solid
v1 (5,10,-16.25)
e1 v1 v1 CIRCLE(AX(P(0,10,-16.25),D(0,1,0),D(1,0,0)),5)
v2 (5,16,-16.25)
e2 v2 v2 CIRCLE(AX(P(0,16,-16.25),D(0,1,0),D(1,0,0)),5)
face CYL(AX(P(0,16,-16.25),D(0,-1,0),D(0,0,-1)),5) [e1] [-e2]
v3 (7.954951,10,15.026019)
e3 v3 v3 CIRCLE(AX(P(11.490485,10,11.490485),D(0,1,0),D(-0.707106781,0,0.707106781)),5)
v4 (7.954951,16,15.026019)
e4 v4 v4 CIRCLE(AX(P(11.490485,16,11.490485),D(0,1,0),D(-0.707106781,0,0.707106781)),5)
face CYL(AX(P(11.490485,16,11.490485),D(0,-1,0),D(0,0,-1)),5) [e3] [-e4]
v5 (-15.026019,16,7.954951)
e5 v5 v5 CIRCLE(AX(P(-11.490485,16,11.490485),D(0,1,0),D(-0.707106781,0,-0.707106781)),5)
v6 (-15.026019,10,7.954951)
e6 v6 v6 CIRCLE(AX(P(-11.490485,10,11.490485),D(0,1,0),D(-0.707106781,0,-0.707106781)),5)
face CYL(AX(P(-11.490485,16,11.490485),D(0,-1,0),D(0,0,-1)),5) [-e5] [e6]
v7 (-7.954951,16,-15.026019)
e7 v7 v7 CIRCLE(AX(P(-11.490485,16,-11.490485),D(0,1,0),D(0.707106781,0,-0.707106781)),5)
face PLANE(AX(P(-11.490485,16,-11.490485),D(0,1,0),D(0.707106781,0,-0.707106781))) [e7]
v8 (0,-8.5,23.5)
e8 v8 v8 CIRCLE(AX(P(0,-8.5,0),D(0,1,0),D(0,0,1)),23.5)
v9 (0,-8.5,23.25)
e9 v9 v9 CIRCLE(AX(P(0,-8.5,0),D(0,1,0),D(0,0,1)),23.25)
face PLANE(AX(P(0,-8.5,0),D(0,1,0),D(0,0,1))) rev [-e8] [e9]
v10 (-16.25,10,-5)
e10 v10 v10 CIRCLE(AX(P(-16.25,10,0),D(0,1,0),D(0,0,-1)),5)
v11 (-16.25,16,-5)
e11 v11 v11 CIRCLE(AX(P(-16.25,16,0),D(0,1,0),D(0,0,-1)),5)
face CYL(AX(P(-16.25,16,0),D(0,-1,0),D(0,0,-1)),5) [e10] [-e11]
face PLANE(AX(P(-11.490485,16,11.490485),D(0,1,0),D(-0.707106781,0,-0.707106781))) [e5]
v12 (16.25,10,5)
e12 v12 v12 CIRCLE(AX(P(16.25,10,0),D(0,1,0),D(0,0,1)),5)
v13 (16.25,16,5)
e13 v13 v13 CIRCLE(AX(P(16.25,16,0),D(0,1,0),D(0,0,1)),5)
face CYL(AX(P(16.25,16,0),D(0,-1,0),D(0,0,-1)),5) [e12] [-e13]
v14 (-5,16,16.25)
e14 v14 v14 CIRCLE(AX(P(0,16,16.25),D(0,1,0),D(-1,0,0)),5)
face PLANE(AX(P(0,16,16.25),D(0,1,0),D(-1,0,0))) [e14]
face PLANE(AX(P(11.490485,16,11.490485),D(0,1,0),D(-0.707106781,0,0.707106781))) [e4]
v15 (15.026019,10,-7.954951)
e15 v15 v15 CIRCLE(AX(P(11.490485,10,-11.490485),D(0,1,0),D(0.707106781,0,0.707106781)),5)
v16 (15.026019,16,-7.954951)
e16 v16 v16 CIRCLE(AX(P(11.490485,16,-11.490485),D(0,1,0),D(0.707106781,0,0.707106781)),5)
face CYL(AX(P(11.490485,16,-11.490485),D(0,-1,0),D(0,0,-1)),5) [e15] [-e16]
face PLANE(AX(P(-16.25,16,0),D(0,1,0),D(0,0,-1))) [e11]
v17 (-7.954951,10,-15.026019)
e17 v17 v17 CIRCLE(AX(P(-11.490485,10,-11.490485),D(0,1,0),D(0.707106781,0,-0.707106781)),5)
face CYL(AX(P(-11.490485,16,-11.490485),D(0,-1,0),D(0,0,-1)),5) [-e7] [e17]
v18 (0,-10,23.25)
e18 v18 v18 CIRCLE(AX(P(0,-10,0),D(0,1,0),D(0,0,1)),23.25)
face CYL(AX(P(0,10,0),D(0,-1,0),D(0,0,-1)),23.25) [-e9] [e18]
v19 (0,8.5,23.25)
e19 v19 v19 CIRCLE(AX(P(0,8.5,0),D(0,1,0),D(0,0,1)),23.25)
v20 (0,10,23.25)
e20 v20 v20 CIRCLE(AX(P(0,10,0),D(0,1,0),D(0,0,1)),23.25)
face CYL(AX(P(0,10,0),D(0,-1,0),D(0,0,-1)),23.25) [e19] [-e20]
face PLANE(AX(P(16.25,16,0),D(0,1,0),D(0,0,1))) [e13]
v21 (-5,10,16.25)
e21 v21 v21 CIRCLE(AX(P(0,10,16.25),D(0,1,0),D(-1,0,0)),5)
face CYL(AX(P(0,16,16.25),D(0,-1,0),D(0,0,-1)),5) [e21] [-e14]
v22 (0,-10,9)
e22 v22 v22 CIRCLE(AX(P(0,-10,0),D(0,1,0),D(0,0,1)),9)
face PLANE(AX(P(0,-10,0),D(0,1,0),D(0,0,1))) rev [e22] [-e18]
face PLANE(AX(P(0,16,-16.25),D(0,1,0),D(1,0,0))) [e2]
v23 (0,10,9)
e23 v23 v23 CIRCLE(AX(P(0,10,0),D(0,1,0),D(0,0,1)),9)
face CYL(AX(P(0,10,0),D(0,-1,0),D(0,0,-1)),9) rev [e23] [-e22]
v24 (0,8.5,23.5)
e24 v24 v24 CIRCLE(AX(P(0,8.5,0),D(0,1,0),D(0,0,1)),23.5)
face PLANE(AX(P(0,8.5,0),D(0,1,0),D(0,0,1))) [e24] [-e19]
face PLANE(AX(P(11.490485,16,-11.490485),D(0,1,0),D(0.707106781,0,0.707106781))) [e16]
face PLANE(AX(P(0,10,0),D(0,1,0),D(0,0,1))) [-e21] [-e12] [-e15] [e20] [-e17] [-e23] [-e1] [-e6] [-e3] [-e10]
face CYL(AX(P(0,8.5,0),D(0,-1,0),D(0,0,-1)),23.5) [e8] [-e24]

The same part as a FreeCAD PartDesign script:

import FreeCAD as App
import Part
import Sketcher
from FreeCAD import Vector

doc = App.newDocument("Part")
params = doc.addObject("Spreadsheet::Sheet", "Params")
for row, (alias, value) in enumerate([
    ("sketch1_diameter", "18 mm"),
    ("sketch1_diameter2", "46.5 mm"),
    ("pad1_length", "20 mm"),
    ("sketch2_diameter", "10 mm"),
    ("pad2_length", "6 mm"),
    ("sketch3_diameter", "47 mm"),
    ("sketch3_diameter2", "18 mm"),
    ("pad3_length", "17 mm"),
], start=1):
    params.set(f"A{row}", alias)
    params.set(f"B{row}", "=" + value)
    params.setAlias(f"B{row}", alias)

body = doc.addObject("PartDesign::Body", "Body")

# Sketch on XZ plane
sketch1 = doc.addObject("Sketcher::SketchObject", "Sketch")
body.addObject(sketch1)
sketch1.AttachmentSupport = (doc.XZ_Plane, [""])
sketch1.MapMode = "FlatFace"
sketch1.addGeometry(Part.Circle(Vector(0, 0, 0), Vector(0, 0, 1), 23.25), False)
sketch1.addGeometry(Part.Circle(Vector(0, 0, 0), Vector(0, 0, 1), 9), False)
sketch1.addConstraint(Sketcher.Constraint("Coincident", 0, 3, -1, 1))
sketch1.addConstraint(Sketcher.Constraint("Coincident", 1, 3, -1, 1))
sketch1.addConstraint(Sketcher.Constraint("Diameter", 1, 18.0))
sketch1.addConstraint(Sketcher.Constraint("Diameter", 0, 46.5))
sketch1.setExpression("Constraints[2]", "Params.sketch1_diameter")
sketch1.setExpression("Constraints[3]", "Params.sketch1_diameter2")
pad1 = doc.addObject("PartDesign::Pad", "Pad")
body.addObject(pad1)
pad1.Profile = sketch1
pad1.setExpression("Length", "Params.pad1_length")
pad1.Midplane = True

# Sketch on XZ plane
sketch2 = doc.addObject("Sketcher::SketchObject", "Sketch001")
body.addObject(sketch2)
sketch2.AttachmentSupport = (doc.XZ_Plane, [""])
sketch2.MapMode = "FlatFace"
sketch2.AttachmentOffset = App.Placement(Vector(0, 0, -10), App.Rotation())
sketch2.addGeometry(Part.Circle(Vector(16.25, 0, 0), Vector(0, 0, 1), 5), False)
sketch2.addConstraint(Sketcher.Constraint("PointOnObject", 0, 3, -1))
sketch2.addConstraint(Sketcher.Constraint("Diameter", 0, 10.0))
sketch2.addConstraint(Sketcher.Constraint("DistanceX", -1, 1, 0, 3, 16.25))
sketch2.setExpression("Constraints[1]", "Params.sketch2_diameter")
pad2 = doc.addObject("PartDesign::Pad", "Pad001")
body.addObject(pad2)
pad2.Profile = sketch2
pad2.setExpression("Length", "Params.pad2_length")
pad2.Reversed = True
doc.recompute()

polarpattern = doc.addObject("PartDesign::PolarPattern", "PolarPattern")
body.addObject(polarpattern)
polarpattern.Originals = [pad2]
polarpattern.Axis = (doc.Y_Axis, [""])
polarpattern.Angle = 360
polarpattern.Occurrences = 8
body.Tip = polarpattern

# Sketch on XZ plane
sketch3 = doc.addObject("Sketcher::SketchObject", "Sketch002")
body.addObject(sketch3)
sketch3.AttachmentSupport = (doc.XZ_Plane, [""])
sketch3.MapMode = "FlatFace"
sketch3.addGeometry(Part.Circle(Vector(0, 0, 0), Vector(0, 0, 1), 23.5), False)
sketch3.addGeometry(Part.Circle(Vector(0, 0, 0), Vector(0, 0, 1), 9), False)
sketch3.addConstraint(Sketcher.Constraint("Coincident", 0, 3, -1, 1))
sketch3.addConstraint(Sketcher.Constraint("Coincident", 1, 3, -1, 1))
sketch3.addConstraint(Sketcher.Constraint("Diameter", 0, 47.0))
sketch3.addConstraint(Sketcher.Constraint("Diameter", 1, 18.0))
sketch3.setExpression("Constraints[2]", "Params.sketch3_diameter")
sketch3.setExpression("Constraints[3]", "Params.sketch3_diameter2")
pad3 = doc.addObject("PartDesign::Pad", "Pad002")
body.addObject(pad3)
pad3.Profile = sketch3
pad3.setExpression("Length", "Params.pad3_length")
pad3.Midplane = True

doc.recompute()
